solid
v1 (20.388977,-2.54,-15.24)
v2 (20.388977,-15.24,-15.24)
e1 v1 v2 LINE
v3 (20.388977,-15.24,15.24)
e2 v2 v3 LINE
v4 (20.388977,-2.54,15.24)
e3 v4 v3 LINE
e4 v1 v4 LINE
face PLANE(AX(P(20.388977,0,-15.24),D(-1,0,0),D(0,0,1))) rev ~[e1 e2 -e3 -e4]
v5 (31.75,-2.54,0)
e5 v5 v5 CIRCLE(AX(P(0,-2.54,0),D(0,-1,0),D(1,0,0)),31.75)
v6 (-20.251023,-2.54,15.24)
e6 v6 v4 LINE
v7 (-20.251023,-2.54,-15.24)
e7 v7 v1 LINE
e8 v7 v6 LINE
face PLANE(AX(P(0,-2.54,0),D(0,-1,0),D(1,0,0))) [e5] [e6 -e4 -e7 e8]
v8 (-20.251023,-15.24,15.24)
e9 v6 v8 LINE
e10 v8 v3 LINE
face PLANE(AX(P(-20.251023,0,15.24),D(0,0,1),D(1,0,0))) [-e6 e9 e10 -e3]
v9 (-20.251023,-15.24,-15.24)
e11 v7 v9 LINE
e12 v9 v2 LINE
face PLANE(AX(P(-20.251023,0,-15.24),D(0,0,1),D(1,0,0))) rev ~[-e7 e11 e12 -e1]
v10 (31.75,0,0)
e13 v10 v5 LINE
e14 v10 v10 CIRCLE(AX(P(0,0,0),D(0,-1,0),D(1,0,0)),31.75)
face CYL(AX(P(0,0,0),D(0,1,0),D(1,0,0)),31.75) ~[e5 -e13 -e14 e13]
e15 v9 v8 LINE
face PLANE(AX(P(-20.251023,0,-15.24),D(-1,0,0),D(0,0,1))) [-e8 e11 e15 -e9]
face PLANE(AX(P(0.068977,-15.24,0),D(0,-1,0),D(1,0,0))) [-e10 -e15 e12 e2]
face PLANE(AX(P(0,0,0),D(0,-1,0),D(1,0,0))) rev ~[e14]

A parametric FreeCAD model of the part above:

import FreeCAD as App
import Part
import Sketcher
Q = App.Units.Quantity


def add_polygon(sketch, points):
    """Adds a closed chain of lines whose ends are joined by coincident constraints."""
    first, n = sketch.GeometryCount, len(points)
    for a, b in zip(points, points[1:] + points[:1]):
        sketch.addGeometry(Part.LineSegment(App.Vector(*a, 0), App.Vector(*b, 0)), False)
    for i in range(n):
        sketch.addConstraint(Sketcher.Constraint("Coincident", first + i, 2, first + (i + 1) % n, 1))

doc = App.newDocument("Part")
body = doc.addObject("PartDesign::Body", "Body")

# Sketch on XZ plane
sketch1 = body.newObject("Sketcher::SketchObject", "Sketch")
sketch1.AttachmentSupport = (doc.getObject("XZ_Plane"), [""])
sketch1.MapMode = "FlatFace"
sketch1.addGeometry(Part.Circle(App.Vector(0, 0, 0), App.Vector(0, 0, 1), 31.75), False)  # 0
add_polygon(sketch1, [(20.388977, -15.24), (-20.251023, -15.24), (-20.251023, 15.24), (20.388977, 15.24)])  # lines 1-4
sketch1.addConstraint([
    Sketcher.Constraint("Horizontal", 1),
    Sketcher.Constraint("Vertical", 2),
    Sketcher.Constraint("Horizontal", 3),
    Sketcher.Constraint("Vertical", 4),
    Sketcher.Constraint("Coincident", 0, 3, -1, 1),
    Sketcher.Constraint("Diameter", 0, Q("2.5 in")),
    Sketcher.Constraint("DistanceX", 1, 2, 1, 1, Q("1.6 in")),
    Sketcher.Constraint("DistanceY", 2, 1, 2, 2, Q("1.2 in")),
    Sketcher.Constraint("DistanceY", 1, 2, -1, 1, Q("0.6 in")),
    Sketcher.Constraint("DistanceX", 1, 2, -1, 1, Q("20.251023 mm")),
])
pad1 = body.newObject("PartDesign::Pad", "Pad")
pad1.Profile = sketch1
pad1.Length = Q("0.1 in")

# Sketch on XZ plane
sketch2 = body.newObject("Sketcher::SketchObject", "Sketch001")
sketch2.AttachmentSupport = (doc.getObject("XZ_Plane"), [""])
sketch2.MapMode = "FlatFace"
add_polygon(sketch2, [(-20.251023, 15.24), (-20.251023, -15.24), (20.388977, -15.24), (20.388977, 15.24)])  # lines 0-3
sketch2.addConstraint([
    Sketcher.Constraint("Vertical", 0),
    Sketcher.Constraint("Horizontal", 1),
    Sketcher.Constraint("Vertical", 2),
    Sketcher.Constraint("Horizontal", 3),
    Sketcher.Constraint("DistanceX", 1, 1, 1, 2, Q("1.6 in")),
    Sketcher.Constraint("DistanceY", 0, 2, 0, 1, Q("1.2 in")),
    Sketcher.Constraint("DistanceY", 0, 2, -1, 1, Q("0.6 in")),
    Sketcher.Constraint("DistanceX", 0, 2, -1, 1, Q("20.251023 mm")),
])
pad2 = body.newObject("PartDesign::Pad", "Pad001")
pad2.Profile = sketch2
pad2.Length = Q("0.6 in")

doc.recompute()
